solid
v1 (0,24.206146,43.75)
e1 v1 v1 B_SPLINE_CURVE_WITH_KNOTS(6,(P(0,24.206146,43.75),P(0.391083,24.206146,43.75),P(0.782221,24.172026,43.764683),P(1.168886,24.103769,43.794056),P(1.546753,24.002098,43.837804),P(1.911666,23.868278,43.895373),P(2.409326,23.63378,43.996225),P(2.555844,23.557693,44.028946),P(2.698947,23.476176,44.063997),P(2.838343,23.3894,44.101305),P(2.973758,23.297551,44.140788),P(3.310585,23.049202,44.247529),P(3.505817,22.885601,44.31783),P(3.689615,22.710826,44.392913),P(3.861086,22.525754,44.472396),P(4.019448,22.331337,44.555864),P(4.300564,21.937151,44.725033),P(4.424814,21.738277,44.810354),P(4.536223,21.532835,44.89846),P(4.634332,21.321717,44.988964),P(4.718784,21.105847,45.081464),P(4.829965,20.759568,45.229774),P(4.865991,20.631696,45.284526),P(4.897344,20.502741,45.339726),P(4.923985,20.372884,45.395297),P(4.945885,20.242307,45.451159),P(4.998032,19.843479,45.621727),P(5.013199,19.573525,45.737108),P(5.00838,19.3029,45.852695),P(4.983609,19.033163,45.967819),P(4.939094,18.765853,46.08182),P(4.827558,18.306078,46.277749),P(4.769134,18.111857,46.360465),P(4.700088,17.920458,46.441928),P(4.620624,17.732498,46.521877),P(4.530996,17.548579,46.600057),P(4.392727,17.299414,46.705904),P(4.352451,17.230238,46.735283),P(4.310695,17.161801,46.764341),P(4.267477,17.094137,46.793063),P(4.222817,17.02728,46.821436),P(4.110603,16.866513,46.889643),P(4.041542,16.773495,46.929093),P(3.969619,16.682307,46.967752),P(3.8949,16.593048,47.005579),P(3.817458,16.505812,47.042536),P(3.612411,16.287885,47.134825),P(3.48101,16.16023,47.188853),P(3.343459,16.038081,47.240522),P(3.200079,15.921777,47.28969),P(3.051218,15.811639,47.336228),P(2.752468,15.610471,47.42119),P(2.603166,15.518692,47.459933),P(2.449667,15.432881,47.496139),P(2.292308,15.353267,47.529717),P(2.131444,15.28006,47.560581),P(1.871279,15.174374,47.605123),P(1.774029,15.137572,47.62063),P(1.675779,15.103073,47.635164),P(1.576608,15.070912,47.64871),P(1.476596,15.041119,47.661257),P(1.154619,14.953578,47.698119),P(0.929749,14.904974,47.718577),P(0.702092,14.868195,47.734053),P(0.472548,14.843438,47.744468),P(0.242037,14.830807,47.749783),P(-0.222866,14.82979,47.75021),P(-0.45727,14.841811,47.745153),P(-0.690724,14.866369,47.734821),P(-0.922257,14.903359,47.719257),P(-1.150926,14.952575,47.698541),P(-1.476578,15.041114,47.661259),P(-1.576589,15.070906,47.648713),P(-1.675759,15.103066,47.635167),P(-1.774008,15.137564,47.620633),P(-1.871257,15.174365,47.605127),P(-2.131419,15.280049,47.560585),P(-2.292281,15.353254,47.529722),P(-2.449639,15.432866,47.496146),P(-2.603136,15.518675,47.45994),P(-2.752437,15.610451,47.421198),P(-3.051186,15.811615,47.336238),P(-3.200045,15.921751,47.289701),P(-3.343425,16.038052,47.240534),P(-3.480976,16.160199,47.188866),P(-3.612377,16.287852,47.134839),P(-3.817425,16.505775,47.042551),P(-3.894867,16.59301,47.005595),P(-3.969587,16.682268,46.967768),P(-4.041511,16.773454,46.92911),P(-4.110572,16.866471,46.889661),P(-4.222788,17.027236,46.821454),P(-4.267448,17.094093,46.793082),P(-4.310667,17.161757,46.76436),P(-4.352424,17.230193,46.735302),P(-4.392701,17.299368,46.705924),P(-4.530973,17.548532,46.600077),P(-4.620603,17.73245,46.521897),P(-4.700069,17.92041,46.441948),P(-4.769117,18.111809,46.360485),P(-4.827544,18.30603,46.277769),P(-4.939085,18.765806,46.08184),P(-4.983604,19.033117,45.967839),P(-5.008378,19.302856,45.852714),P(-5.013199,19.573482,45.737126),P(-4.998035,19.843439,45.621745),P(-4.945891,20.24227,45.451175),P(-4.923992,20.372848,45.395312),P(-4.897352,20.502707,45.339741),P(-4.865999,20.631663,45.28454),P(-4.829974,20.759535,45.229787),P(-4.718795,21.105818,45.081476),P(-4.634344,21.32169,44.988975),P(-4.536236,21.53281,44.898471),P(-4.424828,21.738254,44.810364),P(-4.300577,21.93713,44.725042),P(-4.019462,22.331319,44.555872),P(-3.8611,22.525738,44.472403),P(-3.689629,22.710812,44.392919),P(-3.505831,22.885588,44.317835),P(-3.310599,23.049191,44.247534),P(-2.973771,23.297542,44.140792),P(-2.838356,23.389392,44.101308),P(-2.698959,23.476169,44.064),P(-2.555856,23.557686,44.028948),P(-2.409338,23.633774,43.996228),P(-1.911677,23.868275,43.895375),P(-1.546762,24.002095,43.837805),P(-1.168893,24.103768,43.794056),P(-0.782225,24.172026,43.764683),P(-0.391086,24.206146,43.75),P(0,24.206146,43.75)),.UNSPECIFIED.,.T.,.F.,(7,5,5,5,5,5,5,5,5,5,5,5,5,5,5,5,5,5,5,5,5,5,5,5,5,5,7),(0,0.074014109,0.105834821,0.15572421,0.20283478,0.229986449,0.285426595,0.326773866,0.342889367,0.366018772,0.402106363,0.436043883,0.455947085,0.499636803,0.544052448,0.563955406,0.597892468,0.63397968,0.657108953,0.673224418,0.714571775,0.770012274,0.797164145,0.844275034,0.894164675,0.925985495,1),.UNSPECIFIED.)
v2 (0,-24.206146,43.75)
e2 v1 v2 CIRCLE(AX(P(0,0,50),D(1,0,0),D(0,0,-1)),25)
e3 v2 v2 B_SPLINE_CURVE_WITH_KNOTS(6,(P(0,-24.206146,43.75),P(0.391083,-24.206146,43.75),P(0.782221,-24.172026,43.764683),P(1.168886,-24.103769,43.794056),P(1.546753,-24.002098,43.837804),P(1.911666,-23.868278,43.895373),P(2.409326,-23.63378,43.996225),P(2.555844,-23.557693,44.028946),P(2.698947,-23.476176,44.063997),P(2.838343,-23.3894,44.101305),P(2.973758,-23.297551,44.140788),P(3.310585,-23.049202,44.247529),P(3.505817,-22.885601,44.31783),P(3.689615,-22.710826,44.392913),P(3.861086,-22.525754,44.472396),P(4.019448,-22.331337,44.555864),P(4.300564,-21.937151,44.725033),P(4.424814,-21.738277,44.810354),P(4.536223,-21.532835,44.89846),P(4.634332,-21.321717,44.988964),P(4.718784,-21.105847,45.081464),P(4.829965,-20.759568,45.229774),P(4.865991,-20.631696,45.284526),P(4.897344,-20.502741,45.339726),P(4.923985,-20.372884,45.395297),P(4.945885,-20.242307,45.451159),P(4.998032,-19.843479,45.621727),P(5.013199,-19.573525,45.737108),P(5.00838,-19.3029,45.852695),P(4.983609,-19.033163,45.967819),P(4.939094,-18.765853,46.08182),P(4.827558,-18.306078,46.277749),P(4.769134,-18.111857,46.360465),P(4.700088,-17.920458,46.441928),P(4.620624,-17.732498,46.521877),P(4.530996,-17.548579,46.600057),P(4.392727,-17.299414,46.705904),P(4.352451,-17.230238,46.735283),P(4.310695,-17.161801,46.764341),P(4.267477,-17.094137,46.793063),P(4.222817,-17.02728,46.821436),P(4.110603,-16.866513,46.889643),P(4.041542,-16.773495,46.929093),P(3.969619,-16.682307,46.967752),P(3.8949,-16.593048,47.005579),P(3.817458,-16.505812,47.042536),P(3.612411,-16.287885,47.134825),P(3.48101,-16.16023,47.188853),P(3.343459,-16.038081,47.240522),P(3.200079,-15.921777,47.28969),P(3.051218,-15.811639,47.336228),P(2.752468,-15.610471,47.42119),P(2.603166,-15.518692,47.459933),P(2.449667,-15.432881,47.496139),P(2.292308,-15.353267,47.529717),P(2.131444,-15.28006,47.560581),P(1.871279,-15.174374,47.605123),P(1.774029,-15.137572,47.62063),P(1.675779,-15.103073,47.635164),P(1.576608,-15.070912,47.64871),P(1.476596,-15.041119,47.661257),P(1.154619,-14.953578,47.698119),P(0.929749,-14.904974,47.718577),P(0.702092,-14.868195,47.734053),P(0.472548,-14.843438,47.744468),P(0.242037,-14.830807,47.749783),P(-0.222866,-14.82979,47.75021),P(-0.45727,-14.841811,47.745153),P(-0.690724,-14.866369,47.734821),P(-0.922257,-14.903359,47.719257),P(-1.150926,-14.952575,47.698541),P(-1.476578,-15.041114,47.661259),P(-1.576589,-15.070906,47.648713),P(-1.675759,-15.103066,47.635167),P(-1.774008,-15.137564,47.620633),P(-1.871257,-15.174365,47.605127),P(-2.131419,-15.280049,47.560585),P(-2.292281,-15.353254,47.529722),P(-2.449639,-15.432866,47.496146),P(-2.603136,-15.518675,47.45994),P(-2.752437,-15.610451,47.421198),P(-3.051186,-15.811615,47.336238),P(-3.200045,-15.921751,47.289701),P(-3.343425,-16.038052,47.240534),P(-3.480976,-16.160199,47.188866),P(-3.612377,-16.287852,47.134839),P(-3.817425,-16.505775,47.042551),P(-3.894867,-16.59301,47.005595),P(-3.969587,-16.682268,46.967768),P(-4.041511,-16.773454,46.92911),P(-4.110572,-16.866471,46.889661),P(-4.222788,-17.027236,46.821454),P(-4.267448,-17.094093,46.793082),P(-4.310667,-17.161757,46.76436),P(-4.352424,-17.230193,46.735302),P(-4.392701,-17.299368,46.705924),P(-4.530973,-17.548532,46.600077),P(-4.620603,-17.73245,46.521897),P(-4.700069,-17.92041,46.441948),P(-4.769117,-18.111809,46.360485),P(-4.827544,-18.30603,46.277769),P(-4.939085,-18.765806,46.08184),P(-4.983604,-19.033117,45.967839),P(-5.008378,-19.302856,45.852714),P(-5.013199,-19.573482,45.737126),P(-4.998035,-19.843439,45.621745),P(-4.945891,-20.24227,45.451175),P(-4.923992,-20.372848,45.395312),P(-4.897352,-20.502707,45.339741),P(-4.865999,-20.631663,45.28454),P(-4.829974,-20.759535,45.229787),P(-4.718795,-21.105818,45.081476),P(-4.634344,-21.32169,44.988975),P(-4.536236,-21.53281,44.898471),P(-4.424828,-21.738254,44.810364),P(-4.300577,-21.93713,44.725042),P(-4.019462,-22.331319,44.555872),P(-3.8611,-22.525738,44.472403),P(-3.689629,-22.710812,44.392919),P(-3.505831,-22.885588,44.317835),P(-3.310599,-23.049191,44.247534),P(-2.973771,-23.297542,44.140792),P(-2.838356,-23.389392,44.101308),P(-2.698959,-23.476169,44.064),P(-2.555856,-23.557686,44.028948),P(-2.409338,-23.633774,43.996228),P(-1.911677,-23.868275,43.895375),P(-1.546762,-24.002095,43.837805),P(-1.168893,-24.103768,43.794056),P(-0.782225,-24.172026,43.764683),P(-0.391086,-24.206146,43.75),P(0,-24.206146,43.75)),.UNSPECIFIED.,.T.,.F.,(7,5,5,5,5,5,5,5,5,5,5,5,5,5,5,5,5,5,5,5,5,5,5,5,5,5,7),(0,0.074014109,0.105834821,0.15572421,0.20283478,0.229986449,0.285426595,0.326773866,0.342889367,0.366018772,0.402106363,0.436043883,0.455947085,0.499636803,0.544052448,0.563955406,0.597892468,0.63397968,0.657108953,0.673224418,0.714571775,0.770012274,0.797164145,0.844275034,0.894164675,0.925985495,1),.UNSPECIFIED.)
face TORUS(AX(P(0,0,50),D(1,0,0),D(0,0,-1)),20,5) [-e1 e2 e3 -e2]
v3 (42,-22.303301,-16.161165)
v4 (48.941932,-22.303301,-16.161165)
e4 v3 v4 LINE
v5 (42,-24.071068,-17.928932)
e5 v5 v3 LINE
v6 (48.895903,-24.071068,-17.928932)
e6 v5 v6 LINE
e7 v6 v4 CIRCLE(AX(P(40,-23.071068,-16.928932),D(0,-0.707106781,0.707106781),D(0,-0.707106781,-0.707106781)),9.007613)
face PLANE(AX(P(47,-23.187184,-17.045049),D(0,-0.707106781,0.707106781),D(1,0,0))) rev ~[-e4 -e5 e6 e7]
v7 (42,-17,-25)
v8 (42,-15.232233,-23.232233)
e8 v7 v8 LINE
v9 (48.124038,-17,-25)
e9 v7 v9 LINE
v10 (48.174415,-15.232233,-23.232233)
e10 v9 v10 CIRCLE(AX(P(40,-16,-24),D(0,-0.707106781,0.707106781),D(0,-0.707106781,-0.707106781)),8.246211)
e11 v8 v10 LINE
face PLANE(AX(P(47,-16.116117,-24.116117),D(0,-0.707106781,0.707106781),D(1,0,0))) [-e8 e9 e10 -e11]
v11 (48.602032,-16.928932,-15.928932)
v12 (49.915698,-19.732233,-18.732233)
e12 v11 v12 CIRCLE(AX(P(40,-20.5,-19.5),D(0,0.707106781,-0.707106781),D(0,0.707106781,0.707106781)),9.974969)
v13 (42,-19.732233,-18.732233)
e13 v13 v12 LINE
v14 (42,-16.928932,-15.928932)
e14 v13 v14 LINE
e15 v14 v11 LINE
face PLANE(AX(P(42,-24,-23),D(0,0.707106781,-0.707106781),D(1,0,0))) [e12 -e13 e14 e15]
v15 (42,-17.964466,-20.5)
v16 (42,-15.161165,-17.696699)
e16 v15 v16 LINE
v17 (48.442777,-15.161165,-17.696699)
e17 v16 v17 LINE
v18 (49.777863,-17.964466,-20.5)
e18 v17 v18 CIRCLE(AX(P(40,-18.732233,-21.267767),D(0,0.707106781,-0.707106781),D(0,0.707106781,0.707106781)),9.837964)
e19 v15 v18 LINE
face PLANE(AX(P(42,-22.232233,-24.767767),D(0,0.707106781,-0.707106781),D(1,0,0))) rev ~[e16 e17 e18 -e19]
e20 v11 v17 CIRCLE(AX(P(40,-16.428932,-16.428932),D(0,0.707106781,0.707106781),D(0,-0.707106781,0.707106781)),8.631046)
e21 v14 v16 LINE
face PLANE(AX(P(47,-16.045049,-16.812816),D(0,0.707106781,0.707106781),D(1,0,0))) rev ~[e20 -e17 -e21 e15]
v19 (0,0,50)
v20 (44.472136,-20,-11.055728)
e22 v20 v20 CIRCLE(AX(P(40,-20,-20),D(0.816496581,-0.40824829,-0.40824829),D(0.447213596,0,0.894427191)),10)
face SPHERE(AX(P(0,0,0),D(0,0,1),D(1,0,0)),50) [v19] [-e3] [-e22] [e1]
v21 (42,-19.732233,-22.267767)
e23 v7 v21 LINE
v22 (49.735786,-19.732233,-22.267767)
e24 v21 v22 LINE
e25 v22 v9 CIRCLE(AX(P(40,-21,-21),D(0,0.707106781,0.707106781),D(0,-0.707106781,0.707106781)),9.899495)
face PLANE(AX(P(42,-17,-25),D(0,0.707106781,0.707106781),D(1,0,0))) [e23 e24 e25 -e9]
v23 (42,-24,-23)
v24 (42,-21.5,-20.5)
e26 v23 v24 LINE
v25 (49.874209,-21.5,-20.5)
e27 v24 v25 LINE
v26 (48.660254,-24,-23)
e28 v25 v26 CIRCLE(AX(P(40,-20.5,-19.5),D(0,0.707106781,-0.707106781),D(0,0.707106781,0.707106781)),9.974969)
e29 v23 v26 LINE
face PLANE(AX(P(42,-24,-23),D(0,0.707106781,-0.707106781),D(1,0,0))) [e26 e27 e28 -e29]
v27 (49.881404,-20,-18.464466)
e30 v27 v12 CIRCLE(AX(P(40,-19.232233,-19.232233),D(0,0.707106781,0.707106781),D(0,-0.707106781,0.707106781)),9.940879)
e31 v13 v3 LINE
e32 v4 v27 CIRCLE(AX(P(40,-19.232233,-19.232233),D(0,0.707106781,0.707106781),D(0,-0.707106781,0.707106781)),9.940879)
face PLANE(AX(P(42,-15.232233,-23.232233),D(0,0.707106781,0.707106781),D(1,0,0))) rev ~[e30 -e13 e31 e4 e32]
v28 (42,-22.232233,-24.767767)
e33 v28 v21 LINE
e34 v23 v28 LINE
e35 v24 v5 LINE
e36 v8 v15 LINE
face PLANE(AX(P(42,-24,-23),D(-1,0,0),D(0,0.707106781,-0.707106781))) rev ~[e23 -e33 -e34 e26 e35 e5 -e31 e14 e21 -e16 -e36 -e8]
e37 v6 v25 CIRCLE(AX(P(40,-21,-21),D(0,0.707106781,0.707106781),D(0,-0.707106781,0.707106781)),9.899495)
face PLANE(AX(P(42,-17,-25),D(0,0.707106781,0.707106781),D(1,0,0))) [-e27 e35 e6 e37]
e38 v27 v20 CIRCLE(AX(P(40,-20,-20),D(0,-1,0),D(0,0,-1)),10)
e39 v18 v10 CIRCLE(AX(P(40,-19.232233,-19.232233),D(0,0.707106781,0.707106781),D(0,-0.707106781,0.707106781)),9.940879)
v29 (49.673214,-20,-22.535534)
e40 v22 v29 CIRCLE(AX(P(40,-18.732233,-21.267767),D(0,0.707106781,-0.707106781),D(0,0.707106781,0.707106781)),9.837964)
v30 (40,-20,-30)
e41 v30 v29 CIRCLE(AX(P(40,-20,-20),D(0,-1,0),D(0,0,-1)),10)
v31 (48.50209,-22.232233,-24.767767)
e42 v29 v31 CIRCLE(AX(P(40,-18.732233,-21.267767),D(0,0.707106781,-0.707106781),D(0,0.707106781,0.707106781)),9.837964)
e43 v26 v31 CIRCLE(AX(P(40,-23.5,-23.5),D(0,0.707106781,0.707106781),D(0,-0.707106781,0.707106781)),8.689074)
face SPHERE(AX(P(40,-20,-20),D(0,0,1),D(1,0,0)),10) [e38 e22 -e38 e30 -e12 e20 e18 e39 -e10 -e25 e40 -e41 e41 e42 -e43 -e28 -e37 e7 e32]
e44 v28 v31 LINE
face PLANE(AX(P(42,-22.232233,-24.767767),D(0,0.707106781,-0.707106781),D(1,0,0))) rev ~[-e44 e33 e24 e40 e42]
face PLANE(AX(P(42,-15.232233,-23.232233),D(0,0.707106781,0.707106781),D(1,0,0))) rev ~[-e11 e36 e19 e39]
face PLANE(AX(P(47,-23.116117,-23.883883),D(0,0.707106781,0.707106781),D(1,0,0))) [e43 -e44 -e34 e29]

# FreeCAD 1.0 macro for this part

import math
import FreeCAD as App
import Part
import Sketcher
from FreeCAD import Vector


def add_polygon(sketch, points):
    """Adds a closed chain of lines whose ends are joined by coincident constraints."""
    first, n = sketch.GeometryCount, len(points)
    for a, b in zip(points, points[1:] + points[:1]):
        sketch.addGeometry(Part.LineSegment(App.Vector(*a, 0), App.Vector(*b, 0)), False)
    for i in range(n):
        sketch.addConstraint(Sketcher.Constraint("Coincident", first + i, 2, first + (i + 1) % n, 1))

doc = App.newDocument("Part")
body = doc.addObject("PartDesign::Body", "Body")

sketch1 = body.newObject("Sketcher::SketchObject", "Sketch")
sketch1.AttachmentSupport = (doc.getObject("XY_Plane"), [""])
sketch1.MapMode = "FlatFace"
add_polygon(sketch1, [(0, 2.5), (0, 0), (10, 0), (10, 2.5)])
sketch1.addConstraint(Sketcher.Constraint("Vertical", 0))
sketch1.addConstraint(Sketcher.Constraint("Horizontal", 1))
sketch1.addConstraint(Sketcher.Constraint("Vertical", 2))
sketch1.addConstraint(Sketcher.Constraint("Horizontal", 3))
sketch1.addConstraint(Sketcher.Constraint("Coincident", 0, 2, -1, 1))
sketch1.addConstraint(Sketcher.Constraint("DistanceX", 1, 1, 1, 2, 10.0))
sketch1.addConstraint(Sketcher.Constraint("DistanceY", 0, 2, 0, 1, 2.5))
pad1 = body.newObject("PartDesign::Pad", "Pad")
pad1.Profile = sketch1
pad1.Length = 10
body2 = doc.addObject("PartDesign::Body", "Body001")
doc.recompute()

body.Placement = App.Placement(Vector(0, 0, 0), App.Rotation(Vector(1, 0, 0), 45))
boolean = body2.newObject("PartDesign::Boolean", "Boolean")
boolean.Type = "Fuse"
boolean.addObjects([body])
body3 = doc.addObject("PartDesign::Body", "Body002")
doc.recompute()

body2.Placement = App.Placement(Vector(42, -17, -25), App.Rotation(Vector(0, 0, 1), 0))
boolean2 = body3.newObject("PartDesign::Boolean", "Boolean001")
boolean2.Type = "Fuse"
boolean2.addObjects([body2])
body4 = doc.addObject("PartDesign::Body", "Body003")

sketch2 = body4.newObject("Sketcher::SketchObject", "Sketch001")
sketch2.AttachmentSupport = (doc.getObject("XY_Plane003"), [""])
sketch2.MapMode = "FlatFace"
add_polygon(sketch2, [(0, 2.5), (0, 0), (10, 0), (10, 2.5)])
sketch2.addConstraint(Sketcher.Constraint("Vertical", 0))
sketch2.addConstraint(Sketcher.Constraint("Horizontal", 1))
sketch2.addConstraint(Sketcher.Constraint("Vertical", 2))
sketch2.addConstraint(Sketcher.Constraint("Horizontal", 3))
sketch2.addConstraint(Sketcher.Constraint("Coincident", 0, 2, -1, 1))
sketch2.addConstraint(Sketcher.Constraint("DistanceX", 1, 1, 1, 2, 10.0))
sketch2.addConstraint(Sketcher.Constraint("DistanceY", 0, 2, 0, 1, 2.5))
pad2 = body4.newObject("PartDesign::Pad", "Pad001")
pad2.Profile = sketch2
pad2.Length = 10
body5 = doc.addObject("PartDesign::Body", "Body004")
doc.recompute()

body4.Placement = App.Placement(Vector(0, 0, 0), App.Rotation(Vector(1, 0, 0), 315))
boolean3 = body5.newObject("PartDesign::Boolean", "Boolean002")
boolean3.Type = "Fuse"
boolean3.addObjects([body4])
body6 = doc.addObject("PartDesign::Body", "Body005")
doc.recompute()

body5.Placement = App.Placement(Vector(42, -24, -23), App.Rotation(Vector(0, 0, 1), 0))
boolean4 = body6.newObject("PartDesign::Boolean", "Boolean003")
boolean4.Type = "Fuse"
boolean4.addObjects([body5])
body7 = doc.addObject("PartDesign::Body", "Body006")

sketch3 = body7.newObject("Sketcher::SketchObject", "Sketch002")
sketch3.AttachmentSupport = (doc.getObject("XZ_Plane006"), [""])
sketch3.MapMode = "FlatFace"
sketch3.addGeometry(Part.Circle(Vector(20, 0, 0), Vector(0, 0, 1), 5), False)
sketch3.addConstraint(Sketcher.Constraint("PointOnObject", 0, 3, -1))
sketch3.addConstraint(Sketcher.Constraint("Diameter", 0, 10.0))
sketch3.addConstraint(Sketcher.Constraint("DistanceX", -1, 1, 0, 3, 20.0))
revolution = body7.newObject("PartDesign::Revolution", "Revolution")
revolution.Profile = sketch3
revolution.ReferenceAxis = (sketch3, ["V_Axis"])
revolution.Angle = 360
body8 = doc.addObject("PartDesign::Body", "Body007")
doc.recompute()

body7.Placement = App.Placement(Vector(0, 0, 0), App.Rotation(Vector(0, 1, 0), 90))
boolean5 = body8.newObject("PartDesign::Boolean", "Boolean004")
boolean5.Type = "Fuse"
boolean5.addObjects([body7])
body9 = doc.addObject("PartDesign::Body", "Body008")
doc.recompute()

body8.Placement = App.Placement(Vector(0, 0, 50), App.Rotation(Vector(0, 0, 1), 0))
boolean6 = body9.newObject("PartDesign::Boolean", "Boolean005")
boolean6.Type = "Fuse"
boolean6.addObjects([body8])
body10 = doc.addObject("PartDesign::Body", "Body009")

sketch4 = body10.newObject("Sketcher::SketchObject", "Sketch003")
sketch4.AttachmentSupport = (doc.getObject("XZ_Plane009"), [""])
sketch4.MapMode = "FlatFace"
sketch4.AttachmentOffset = App.Placement(Vector(0, 0, 20), App.Rotation())
sketch4.addGeometry(Part.ArcOfCircle(Part.Circle(Vector(40, -20, 0), Vector(0, 0, 1), 10), math.radians(-90), math.radians(90)), False)
sketch4.addGeometry(Part.LineSegment(Vector(40, -10, 0), Vector(40, -30, 0)), False)
sketch4.addGeometry(Part.LineSegment(Vector(40, -30, 0), Vector(40, -10, 0)), True)
sketch4.addConstraint(Sketcher.Constraint("Coincident", 0, 1, 1, 2))
sketch4.addConstraint(Sketcher.Constraint("Coincident", 1, 1, 0, 2))
sketch4.addConstraint(Sketcher.Constraint("Vertical", 1))
sketch4.addConstraint(Sketcher.Constraint("Vertical", 2))
sketch4.addConstraint(Sketcher.Constraint("Coincident", 2, 1, 0, 1))
sketch4.addConstraint(Sketcher.Constraint("Equal", 1, 2))
sketch4.addConstraint(Sketcher.Constraint("Radius", 0, 10.0))
sketch4.addConstraint(Sketcher.Constraint("DistanceX", -1, 1, 0, 3, 40.0))
sketch4.addConstraint(Sketcher.Constraint("DistanceY", 0, 3, -1, 1, 20.0))
sketch4.addConstraint(Sketcher.Constraint("DistanceX", -1, 1, 0, 1, 40.0))
revolution2 = body10.newObject("PartDesign::Revolution", "Revolution001")
revolution2.Profile = sketch4
revolution2.ReferenceAxis = (sketch4, ["Axis0"])
revolution2.Angle = 360
body11 = doc.addObject("PartDesign::Body", "Body010")

sketch5 = body11.newObject("Sketcher::SketchObject", "Sketch004")
sketch5.AttachmentSupport = (doc.getObject("XZ_Plane010"), [""])
sketch5.MapMode = "FlatFace"
sketch5.addGeometry(Part.ArcOfCircle(Part.Circle(Vector(0, 0, 0), Vector(0, 0, 1), 50), math.radians(-90), math.radians(90)), False)
sketch5.addGeometry(Part.LineSegment(Vector(0, 50, 0), Vector(0, -50, 0)), False)
sketch5.addConstraint(Sketcher.Constraint("Coincident", 0, 1, 1, 2))
sketch5.addConstraint(Sketcher.Constraint("Coincident", 1, 1, 0, 2))
sketch5.addConstraint(Sketcher.Constraint("Vertical", 1))
sketch5.addConstraint(Sketcher.Constraint("Coincident", 0, 3, -1, 1))
sketch5.addConstraint(Sketcher.Constraint("PointOnObject", 0, 1, -2))
sketch5.addConstraint(Sketcher.Constraint("Radius", 0, 50.0))
revolution3 = body11.newObject("PartDesign::Revolution", "Revolution002")
revolution3.Profile = sketch5
revolution3.ReferenceAxis = (sketch5, ["V_Axis"])
revolution3.Angle = 360
doc.recompute()

boolean7 = body11.newObject("PartDesign::Boolean", "Boolean006")
boolean7.Type = "Fuse"
boolean7.addObjects([body10])
doc.recompute()

boolean8 = body11.newObject("PartDesign::Boolean", "Boolean007")
boolean8.Type = "Fuse"
boolean8.addObjects([body9])
doc.recompute()

boolean9 = body11.newObject("PartDesign::Boolean", "Boolean008")
boolean9.Type = "Cut"
boolean9.addObjects([body6])
doc.recompute()

boolean10 = body11.newObject("PartDesign::Boolean", "Boolean009")
boolean10.Type = "Cut"
boolean10.addObjects([body3])

doc.recompute()
